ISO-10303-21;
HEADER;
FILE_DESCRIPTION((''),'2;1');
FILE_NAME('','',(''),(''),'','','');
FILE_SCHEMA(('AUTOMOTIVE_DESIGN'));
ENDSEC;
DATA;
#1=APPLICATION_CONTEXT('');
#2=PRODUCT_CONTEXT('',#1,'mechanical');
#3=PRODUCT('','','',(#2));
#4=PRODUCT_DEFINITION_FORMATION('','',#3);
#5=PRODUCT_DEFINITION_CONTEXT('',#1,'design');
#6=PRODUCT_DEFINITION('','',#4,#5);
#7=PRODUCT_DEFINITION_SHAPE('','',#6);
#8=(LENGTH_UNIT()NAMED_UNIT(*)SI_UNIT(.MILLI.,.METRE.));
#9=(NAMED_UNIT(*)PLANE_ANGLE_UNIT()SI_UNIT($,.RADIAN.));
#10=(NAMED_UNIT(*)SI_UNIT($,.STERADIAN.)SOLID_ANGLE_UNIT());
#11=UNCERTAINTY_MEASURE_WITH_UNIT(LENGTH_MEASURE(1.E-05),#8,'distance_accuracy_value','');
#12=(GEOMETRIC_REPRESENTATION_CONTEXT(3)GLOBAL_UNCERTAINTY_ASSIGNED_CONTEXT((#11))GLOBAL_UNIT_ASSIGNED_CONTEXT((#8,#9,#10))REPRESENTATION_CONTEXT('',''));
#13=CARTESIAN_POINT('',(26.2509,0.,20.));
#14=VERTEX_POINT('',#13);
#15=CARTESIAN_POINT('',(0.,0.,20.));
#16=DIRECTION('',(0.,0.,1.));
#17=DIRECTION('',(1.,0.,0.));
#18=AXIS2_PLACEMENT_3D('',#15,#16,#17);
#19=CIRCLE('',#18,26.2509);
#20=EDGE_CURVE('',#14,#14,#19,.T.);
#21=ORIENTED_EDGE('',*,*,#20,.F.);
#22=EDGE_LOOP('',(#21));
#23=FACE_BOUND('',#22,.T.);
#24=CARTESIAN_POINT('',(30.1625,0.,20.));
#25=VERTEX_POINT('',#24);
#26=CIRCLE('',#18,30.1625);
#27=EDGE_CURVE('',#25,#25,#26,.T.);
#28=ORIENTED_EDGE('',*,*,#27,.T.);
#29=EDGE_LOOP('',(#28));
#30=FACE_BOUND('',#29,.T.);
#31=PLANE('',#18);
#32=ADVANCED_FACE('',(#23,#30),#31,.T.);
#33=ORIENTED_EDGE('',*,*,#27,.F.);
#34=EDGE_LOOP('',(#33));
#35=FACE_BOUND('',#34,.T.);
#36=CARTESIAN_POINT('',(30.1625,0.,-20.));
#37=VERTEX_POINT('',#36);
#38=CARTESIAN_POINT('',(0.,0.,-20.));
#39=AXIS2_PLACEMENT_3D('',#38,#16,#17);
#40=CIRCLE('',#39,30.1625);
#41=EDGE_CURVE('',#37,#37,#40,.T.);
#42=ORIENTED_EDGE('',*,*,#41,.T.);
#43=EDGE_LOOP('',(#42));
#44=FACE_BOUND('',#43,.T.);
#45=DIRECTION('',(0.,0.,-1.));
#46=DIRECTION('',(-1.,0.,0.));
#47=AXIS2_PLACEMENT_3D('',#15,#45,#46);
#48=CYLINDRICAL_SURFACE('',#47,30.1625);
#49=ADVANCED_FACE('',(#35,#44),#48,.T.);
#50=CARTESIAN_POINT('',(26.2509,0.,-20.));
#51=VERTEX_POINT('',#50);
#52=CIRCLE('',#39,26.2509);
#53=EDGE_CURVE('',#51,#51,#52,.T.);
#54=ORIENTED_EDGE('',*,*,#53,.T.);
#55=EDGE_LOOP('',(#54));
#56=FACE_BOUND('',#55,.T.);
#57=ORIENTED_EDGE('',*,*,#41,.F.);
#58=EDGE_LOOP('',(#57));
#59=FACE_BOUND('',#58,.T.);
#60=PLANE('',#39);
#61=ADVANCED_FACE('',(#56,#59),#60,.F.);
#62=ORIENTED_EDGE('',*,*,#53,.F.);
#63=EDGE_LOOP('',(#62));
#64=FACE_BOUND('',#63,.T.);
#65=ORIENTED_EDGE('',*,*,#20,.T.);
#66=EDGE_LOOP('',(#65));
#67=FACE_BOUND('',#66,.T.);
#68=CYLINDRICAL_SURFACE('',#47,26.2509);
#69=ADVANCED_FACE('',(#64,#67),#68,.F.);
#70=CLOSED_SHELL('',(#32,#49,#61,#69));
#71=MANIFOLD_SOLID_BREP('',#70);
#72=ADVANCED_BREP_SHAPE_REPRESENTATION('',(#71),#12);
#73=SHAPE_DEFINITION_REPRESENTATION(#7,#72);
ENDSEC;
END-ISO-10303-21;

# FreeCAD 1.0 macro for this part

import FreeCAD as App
import Part
import Sketcher

V = App.Vector
Q = App.Units.Quantity

doc = App.newDocument("Part")
body = doc.addObject("PartDesign::Body", "Body")

sketch1 = body.newObject("Sketcher::SketchObject", "Sketch")
sketch1.AttachmentSupport = (doc.getObject("XY_Plane"), [""])
sketch1.MapMode = "FlatFace"
sketch1.addGeometry([
    Part.Circle(V(0, 0, 0), V(0, 0, 1), 30),
    Part.Circle(V(0, 0, 0), V(0, 0, 1), 26),
], False)
sketch1.addConstraint([
    Sketcher.Constraint("Coincident", 0, 3, -1, 1),
    Sketcher.Constraint("Coincident", 1, 3, -1, 1),
    Sketcher.Constraint("Diameter", 0, Q("2.375 in")),
    Sketcher.Constraint("Diameter", 1, Q("2.067 in")),
])
pad1 = body.newObject("PartDesign::Pad", "Pad")
pad1.Profile = sketch1
pad1.Length = 40
pad1.Midplane = True

doc.recompute()
